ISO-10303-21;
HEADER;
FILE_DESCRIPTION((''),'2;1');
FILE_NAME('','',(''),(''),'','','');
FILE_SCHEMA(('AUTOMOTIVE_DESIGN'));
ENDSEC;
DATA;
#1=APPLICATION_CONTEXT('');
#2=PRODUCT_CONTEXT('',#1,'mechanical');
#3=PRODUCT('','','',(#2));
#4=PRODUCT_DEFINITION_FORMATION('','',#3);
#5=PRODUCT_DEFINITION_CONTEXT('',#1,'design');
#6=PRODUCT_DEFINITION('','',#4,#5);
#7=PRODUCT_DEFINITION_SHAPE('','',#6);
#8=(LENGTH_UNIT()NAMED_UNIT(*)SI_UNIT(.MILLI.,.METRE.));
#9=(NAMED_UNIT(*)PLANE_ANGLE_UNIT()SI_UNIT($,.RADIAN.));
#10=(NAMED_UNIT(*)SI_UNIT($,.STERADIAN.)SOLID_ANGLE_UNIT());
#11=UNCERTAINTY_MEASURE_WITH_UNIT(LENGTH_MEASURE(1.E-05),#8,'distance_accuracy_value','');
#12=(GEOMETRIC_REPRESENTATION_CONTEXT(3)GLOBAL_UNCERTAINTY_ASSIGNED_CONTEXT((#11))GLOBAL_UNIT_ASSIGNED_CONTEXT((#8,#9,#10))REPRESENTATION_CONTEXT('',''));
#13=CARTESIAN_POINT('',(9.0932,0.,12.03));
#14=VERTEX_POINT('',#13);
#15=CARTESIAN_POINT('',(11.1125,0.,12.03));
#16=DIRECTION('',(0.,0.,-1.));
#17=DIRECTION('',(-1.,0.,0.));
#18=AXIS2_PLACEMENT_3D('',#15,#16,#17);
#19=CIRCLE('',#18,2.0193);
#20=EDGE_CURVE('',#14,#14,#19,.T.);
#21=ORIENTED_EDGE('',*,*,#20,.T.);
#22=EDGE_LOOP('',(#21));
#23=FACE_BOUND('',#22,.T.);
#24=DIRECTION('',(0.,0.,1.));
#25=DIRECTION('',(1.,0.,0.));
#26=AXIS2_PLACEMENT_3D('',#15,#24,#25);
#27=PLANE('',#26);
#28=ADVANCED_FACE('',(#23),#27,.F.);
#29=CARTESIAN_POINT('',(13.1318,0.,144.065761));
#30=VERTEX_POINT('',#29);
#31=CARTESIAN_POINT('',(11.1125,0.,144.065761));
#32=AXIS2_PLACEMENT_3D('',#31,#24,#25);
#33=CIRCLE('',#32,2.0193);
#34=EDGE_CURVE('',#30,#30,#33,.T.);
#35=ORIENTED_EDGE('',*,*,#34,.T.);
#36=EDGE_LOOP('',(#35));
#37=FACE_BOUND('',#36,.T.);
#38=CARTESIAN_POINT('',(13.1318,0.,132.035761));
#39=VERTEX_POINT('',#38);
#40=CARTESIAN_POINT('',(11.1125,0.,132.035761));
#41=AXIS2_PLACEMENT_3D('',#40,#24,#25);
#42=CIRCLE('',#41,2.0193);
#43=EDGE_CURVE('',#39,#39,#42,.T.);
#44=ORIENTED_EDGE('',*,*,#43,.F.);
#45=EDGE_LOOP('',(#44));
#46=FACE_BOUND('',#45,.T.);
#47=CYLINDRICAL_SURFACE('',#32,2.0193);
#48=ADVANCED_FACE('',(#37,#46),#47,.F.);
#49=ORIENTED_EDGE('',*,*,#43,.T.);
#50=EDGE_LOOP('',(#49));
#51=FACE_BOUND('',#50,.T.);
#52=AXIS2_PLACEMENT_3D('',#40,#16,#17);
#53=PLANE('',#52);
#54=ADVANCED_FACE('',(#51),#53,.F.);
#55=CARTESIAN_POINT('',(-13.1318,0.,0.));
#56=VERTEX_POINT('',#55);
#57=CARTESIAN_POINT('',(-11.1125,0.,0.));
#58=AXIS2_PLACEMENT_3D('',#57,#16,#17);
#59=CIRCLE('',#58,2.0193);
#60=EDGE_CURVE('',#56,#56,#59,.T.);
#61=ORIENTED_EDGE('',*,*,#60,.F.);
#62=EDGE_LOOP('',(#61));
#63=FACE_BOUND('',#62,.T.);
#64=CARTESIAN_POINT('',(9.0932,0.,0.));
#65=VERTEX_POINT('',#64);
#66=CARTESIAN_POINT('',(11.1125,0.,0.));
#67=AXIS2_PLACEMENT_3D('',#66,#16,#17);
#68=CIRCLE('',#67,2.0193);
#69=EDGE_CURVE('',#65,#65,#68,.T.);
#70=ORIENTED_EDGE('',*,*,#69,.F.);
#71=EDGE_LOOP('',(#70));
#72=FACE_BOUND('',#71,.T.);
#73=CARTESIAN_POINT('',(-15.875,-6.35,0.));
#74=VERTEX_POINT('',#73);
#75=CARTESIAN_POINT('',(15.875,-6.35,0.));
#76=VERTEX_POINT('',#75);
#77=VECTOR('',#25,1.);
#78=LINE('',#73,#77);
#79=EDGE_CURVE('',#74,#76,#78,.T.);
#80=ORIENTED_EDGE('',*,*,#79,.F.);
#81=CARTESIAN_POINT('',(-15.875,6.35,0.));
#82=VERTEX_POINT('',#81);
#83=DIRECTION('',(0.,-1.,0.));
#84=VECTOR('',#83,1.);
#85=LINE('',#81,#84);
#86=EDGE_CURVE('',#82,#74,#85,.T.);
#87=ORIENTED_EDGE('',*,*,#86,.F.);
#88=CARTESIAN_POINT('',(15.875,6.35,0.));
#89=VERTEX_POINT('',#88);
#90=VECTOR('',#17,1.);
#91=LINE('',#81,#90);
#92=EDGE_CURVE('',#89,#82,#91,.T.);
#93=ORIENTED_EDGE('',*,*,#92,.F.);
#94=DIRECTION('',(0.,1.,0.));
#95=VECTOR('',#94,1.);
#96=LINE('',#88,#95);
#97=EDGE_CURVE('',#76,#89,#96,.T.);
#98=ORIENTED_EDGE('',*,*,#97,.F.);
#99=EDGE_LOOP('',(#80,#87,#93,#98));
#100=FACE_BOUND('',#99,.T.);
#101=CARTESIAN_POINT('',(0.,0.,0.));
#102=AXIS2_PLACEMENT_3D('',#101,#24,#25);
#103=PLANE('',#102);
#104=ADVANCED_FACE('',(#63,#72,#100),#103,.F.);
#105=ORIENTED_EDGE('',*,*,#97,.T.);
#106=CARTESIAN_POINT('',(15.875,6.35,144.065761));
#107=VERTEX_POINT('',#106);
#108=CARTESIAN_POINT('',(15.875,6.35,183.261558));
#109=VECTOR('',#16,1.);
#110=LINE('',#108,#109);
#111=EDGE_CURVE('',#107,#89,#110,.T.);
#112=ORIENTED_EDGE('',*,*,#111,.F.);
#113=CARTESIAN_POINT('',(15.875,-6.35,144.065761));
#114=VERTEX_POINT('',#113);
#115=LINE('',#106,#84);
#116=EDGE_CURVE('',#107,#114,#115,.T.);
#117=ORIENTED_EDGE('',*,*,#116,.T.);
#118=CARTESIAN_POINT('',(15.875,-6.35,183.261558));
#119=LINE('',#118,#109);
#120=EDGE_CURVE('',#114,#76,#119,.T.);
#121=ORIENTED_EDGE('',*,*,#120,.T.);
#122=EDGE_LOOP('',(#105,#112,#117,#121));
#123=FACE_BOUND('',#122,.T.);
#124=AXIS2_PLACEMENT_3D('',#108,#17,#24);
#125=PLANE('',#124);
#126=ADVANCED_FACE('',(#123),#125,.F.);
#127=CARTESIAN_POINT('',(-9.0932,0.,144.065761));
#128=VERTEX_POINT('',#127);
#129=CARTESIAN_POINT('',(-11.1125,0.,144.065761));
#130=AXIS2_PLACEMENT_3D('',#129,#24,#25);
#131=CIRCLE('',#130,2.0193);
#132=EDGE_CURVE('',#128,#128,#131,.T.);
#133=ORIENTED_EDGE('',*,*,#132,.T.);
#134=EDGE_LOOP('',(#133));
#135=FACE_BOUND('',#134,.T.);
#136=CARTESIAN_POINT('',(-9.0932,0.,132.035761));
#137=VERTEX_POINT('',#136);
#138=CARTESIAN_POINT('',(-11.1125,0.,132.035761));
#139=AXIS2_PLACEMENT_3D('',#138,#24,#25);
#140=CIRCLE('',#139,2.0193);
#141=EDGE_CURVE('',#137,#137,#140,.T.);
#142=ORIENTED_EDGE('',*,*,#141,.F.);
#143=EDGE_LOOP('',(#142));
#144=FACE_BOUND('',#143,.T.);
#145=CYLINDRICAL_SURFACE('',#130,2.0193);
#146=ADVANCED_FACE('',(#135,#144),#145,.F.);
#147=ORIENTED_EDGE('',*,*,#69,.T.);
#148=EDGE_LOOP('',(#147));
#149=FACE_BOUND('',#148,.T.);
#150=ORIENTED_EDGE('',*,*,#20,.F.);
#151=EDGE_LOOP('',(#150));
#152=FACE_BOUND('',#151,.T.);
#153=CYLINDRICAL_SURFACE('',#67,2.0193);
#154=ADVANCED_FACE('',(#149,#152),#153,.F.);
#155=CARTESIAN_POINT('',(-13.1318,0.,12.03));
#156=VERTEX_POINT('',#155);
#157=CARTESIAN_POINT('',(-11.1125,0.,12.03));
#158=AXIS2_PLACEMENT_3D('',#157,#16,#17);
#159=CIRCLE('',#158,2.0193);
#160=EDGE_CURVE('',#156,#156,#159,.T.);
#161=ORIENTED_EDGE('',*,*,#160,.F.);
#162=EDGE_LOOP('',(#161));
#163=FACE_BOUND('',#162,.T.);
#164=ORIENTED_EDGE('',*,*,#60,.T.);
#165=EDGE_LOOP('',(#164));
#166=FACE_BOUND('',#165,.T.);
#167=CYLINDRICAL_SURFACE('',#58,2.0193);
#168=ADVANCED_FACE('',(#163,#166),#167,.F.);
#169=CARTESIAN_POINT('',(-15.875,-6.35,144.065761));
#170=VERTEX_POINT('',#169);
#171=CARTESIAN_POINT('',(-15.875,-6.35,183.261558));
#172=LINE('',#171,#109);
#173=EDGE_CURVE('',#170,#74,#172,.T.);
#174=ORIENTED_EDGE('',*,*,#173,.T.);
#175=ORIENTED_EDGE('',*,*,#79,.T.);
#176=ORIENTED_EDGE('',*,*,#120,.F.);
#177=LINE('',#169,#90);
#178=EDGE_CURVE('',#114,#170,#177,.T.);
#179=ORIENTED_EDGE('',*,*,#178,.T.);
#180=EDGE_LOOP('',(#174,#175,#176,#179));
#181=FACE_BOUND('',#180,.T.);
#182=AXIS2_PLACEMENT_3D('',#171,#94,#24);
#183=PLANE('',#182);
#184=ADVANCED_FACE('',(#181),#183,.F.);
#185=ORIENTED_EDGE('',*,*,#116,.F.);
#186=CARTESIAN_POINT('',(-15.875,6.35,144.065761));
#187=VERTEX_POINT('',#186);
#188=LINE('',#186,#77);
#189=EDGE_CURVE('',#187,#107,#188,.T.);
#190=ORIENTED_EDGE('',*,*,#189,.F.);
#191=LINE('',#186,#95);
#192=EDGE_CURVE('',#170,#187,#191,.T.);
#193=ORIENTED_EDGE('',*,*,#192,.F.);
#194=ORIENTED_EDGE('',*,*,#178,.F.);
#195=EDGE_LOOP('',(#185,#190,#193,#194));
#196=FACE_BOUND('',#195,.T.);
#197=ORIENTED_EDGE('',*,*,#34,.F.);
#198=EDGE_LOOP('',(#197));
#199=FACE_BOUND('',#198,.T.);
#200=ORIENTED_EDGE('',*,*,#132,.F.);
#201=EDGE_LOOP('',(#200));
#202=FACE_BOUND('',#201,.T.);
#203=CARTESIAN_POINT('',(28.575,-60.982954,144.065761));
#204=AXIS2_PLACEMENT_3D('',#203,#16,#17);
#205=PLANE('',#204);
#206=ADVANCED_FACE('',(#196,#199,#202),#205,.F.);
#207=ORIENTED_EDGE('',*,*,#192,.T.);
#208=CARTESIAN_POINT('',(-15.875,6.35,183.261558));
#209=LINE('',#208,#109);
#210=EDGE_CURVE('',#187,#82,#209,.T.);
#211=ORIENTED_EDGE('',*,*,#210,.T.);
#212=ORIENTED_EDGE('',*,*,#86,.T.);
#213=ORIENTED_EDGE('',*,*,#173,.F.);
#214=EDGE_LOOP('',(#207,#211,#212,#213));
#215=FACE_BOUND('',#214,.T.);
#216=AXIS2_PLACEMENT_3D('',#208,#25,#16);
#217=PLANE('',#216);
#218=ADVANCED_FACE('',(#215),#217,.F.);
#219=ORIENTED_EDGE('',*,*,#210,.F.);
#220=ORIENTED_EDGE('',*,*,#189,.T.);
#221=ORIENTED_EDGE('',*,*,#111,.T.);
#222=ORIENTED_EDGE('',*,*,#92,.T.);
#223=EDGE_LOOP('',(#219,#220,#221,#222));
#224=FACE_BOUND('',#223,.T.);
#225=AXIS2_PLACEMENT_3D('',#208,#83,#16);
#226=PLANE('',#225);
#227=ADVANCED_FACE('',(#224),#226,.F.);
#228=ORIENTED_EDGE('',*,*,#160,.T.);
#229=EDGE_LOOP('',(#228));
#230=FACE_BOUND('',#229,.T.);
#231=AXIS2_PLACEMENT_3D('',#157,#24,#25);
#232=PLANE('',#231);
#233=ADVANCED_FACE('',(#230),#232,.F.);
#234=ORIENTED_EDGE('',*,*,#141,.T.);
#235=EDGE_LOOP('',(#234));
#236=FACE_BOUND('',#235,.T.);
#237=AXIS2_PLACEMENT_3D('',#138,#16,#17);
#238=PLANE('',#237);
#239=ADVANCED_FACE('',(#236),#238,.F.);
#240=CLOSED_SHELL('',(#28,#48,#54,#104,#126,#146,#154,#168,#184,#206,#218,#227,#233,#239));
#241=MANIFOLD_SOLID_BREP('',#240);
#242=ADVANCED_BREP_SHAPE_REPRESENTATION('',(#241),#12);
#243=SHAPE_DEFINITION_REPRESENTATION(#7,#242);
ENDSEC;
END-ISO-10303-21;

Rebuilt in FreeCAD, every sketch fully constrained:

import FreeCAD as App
import Part
import Sketcher
Q = App.Units.Quantity


def add_polygon(sketch, points):
    """Adds a closed chain of lines whose ends are joined by coincident constraints."""
    first, n = sketch.GeometryCount, len(points)
    for a, b in zip(points, points[1:] + points[:1]):
        sketch.addGeometry(Part.LineSegment(App.Vector(*a, 0), App.Vector(*b, 0)), False)
    for i in range(n):
        sketch.addConstraint(Sketcher.Constraint("Coincident", first + i, 2, first + (i + 1) % n, 1))

doc = App.newDocument("Part")
params = doc.addObject("Spreadsheet::Sheet", "Params")
for row, (alias, value) in enumerate([
    ("sketch1_height", "0.5 in"),
    ("sketch1_width", "1.25 in"),
    ("pad1_length", "144.065761 mm"),
    ("sketch2_diameter", "0.159 in"),
    ("hole_diameter", "0.159 in"),
    ("hole_depth", "12.03 mm"),
], start=1):
    params.set(f"A{row}", alias)
    params.set(f"B{row}", "=" + value)
    params.setAlias(f"B{row}", alias)

body = doc.addObject("PartDesign::Body", "Body")

# Sketch on XY plane
sketch1 = body.newObject("Sketcher::SketchObject", "Sketch")
sketch1.AttachmentSupport = (doc.getObject("XY_Plane"), [""])
sketch1.MapMode = "FlatFace"
add_polygon(sketch1, [(-15.875, 6.35), (-15.875, -6.35), (15.875, -6.35), (15.875, 6.35)])  # lines 0-3
sketch1.addConstraint(Sketcher.Constraint("Vertical", 0))
sketch1.addConstraint(Sketcher.Constraint("Horizontal", 1))
sketch1.addConstraint(Sketcher.Constraint("Vertical", 2))
sketch1.addConstraint(Sketcher.Constraint("Horizontal", 3))
sketch1.addConstraint(Sketcher.Constraint("Symmetric", 0, 2, 2, 2, -1, 1))
sketch1.addConstraint(Sketcher.Constraint("DistanceY", 0, 2, 0, 1, Q("0.5 in")))
sketch1.addConstraint(Sketcher.Constraint("DistanceX", 1, 1, 1, 2, Q("1.25 in")))
sketch1.setExpression("Constraints[9]", "Params.sketch1_height")
sketch1.setExpression("Constraints[10]", "Params.sketch1_width")
pad1 = body.newObject("PartDesign::Pad", "Pad")
pad1.Profile = sketch1
pad1.setExpression("Length", "Params.pad1_length")

# Sketch on XY plane
sketch2 = body.newObject("Sketcher::SketchObject", "Sketch001")
sketch2.AttachmentSupport = (doc.getObject("XY_Plane"), [""])
sketch2.MapMode = "FlatFace"
sketch2.AttachmentOffset = App.Placement(App.Vector(0, 0, 144.065761), App.Rotation())
sketch2.addGeometry(Part.Circle(App.Vector(-11.1125, 0, 0), App.Vector(0, 0, 1), 2.0193), False)
sketch2.addGeometry(Part.Circle(App.Vector(11.1125, 0, 0), App.Vector(0, 0, 1), 2.0193), False)
sketch2.addConstraint(Sketcher.Constraint("Equal", 0, 1))
sketch2.addConstraint(Sketcher.Constraint("Symmetric", 0, 3, 1, 3, -1, 1))
sketch2.addConstraint(Sketcher.Constraint("PointOnObject", 0, 3, -1))
sketch2.addConstraint(Sketcher.Constraint("Diameter", 0, Q("0.159 in")))
sketch2.addConstraint(Sketcher.Constraint("DistanceX", 0, 3, -1, 1, Q("0.4375 in")))
sketch2.setExpression("Constraints[3]", "Params.sketch2_diameter")
doc.recompute()
hole = body.newObject("PartDesign::Hole", "Hole")
hole.Profile = sketch2
hole.ThreadType = "None"
hole.setExpression("Diameter", "Params.hole_diameter")
hole.DepthType = "Dimension"
hole.setExpression("Depth", "Params.hole_depth")
hole.DrillPoint = "Flat"
doc.recompute()

datumplane = body.newObject("PartDesign::Plane", "DatumPlane")
datumplane.AttachmentSupport = (doc.getObject("XY_Plane"), [""])
datumplane.MapMode = "FlatFace"
datumplane.AttachmentOffset = App.Placement(App.Vector(0, 0, 72.032881), App.Rotation())
mirrored = body.newObject("PartDesign::Mirrored", "Mirrored")
mirrored.Originals = [hole]
mirrored.MirrorPlane = (datumplane, [""])
body.Tip = mirrored

doc.recompute()
